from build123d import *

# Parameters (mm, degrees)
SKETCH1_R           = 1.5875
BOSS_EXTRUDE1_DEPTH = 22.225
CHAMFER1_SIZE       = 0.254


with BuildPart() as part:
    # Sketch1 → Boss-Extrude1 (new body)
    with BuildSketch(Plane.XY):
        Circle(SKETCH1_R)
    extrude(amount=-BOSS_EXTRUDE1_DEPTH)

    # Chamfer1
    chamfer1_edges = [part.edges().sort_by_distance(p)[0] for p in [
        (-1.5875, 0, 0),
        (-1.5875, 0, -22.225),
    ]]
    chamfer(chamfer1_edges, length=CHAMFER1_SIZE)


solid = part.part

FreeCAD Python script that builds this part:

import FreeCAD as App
import Part
import Sketcher
from FreeCAD import Vector
Q = App.Units.Quantity


def edges_at(feature, points):
    """Names of the edges that pass closest to the given points."""
    edges = feature.Shape.Edges
    near = lambda p: min(range(len(edges)), key=lambda i: edges[i].distToShape(Part.Vertex(*p))[0])
    return sorted({f"Edge{near(p) + 1}" for p in points})

doc = App.newDocument("Part")
params = doc.addObject("Spreadsheet::Sheet", "Params")
for row, (alias, value) in enumerate([
    ("sketch1_diameter", "0.125 in"),
    ("pad1_length", "0.875 in"),
    ("chamfer_size", "0.01 in"),
], start=1):
    params.set(f"A{row}", alias)
    params.set(f"B{row}", "=" + value)
    params.setAlias(f"B{row}", alias)

body = doc.addObject("PartDesign::Body", "Body")

sketch1 = body.newObject("Sketcher::SketchObject", "Sketch")
sketch1.AttachmentSupport = (doc.getObject("XY_Plane"), [""])
sketch1.MapMode = "FlatFace"
sketch1.addGeometry(Part.Circle(Vector(0, 0, 0), Vector(0, 0, 1), 1.6), False)
sketch1.addConstraint([
    Sketcher.Constraint("Coincident", 0, 3, -1, 1),
    Sketcher.Constraint("Diameter", 0, Q("0.125 in")),
])
sketch1.setExpression("Constraints[1]", "Params.sketch1_diameter")
pad1 = body.newObject("PartDesign::Pad", "Pad")
pad1.Profile = sketch1
pad1.setExpression("Length", "Params.pad1_length")
pad1.Reversed = True
doc.recompute()

chamfer = body.newObject("PartDesign::Chamfer", "Chamfer")
chamfer.Base = (pad1, edges_at(pad1, [(-1.587, 0, 0), (-1.587, 0, -22.225)]))
chamfer.setExpression("Size", "Params.chamfer_size")

doc.recompute()
